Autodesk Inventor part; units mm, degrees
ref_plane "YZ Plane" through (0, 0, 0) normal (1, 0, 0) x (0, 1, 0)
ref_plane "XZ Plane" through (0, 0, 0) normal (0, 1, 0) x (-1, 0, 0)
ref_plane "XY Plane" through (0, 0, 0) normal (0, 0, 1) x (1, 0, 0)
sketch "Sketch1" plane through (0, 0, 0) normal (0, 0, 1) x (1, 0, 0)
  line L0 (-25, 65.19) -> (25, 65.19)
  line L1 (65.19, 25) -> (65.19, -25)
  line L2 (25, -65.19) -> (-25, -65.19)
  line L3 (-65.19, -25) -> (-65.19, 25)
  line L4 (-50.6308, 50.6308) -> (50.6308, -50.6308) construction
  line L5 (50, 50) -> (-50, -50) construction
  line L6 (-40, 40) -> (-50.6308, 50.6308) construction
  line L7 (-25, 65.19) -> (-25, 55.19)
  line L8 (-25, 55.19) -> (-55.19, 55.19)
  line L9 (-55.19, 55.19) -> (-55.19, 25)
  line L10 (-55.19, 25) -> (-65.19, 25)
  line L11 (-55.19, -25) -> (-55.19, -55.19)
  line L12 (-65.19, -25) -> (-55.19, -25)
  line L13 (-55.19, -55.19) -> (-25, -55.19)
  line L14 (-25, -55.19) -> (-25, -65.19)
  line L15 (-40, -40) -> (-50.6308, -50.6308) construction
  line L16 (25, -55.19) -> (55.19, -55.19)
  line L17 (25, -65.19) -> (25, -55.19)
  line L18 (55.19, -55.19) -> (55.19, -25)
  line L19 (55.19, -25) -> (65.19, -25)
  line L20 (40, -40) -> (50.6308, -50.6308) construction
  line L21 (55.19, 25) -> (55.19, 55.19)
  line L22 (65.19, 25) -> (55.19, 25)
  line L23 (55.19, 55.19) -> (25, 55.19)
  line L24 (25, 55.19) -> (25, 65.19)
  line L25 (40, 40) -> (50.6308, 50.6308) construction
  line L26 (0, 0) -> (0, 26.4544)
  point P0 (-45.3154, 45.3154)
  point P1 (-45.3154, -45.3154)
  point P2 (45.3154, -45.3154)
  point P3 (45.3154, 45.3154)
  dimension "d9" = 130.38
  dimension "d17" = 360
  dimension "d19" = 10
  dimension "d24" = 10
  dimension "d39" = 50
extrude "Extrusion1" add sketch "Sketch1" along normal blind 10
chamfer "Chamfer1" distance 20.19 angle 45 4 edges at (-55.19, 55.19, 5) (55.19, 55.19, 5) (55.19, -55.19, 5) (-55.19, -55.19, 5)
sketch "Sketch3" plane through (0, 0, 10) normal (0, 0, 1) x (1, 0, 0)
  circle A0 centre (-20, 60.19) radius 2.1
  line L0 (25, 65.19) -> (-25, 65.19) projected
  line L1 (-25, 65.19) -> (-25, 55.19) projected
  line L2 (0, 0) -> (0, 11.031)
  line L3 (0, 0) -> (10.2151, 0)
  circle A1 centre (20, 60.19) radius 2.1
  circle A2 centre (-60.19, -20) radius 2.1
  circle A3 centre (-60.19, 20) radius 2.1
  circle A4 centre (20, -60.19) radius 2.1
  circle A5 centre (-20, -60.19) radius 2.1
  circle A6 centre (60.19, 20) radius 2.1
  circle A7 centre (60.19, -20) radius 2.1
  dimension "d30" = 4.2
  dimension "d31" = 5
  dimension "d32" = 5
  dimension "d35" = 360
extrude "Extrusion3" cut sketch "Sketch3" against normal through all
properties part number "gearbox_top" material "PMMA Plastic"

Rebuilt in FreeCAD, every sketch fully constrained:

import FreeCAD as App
import Part
import Sketcher

V = App.Vector
Q = App.Units.Quantity


def edges_at(feature, points):
    """Names of the edges that pass closest to the given points."""
    edges = feature.Shape.Edges
    near = lambda p: min(range(len(edges)), key=lambda i: edges[i].distToShape(Part.Vertex(*p))[0])
    return sorted({f"Edge{near(p) + 1}" for p in points})


def add_polygon(sketch, points):
    """Adds a closed chain of lines whose ends are joined by coincident constraints."""
    first, n = sketch.GeometryCount, len(points)
    for a, b in zip(points, points[1:] + points[:1]):
        sketch.addGeometry(Part.LineSegment(App.Vector(*a, 0), App.Vector(*b, 0)), False)
    for i in range(n):
        sketch.addConstraint(Sketcher.Constraint("Coincident", first + i, 2, first + (i + 1) % n, 1))

doc = App.newDocument("Part")
params = doc.addObject("Spreadsheet::Sheet", "Params")
for row, (alias, value) in enumerate([
    ("sketch1_width", "50 mm"),
    ("sketch1_width2", "10 mm"),
    ("sketch1_width3", "30.19 mm"),
    ("pad1_length", "10 mm"),
    ("chamfer_size", "20.19 mm"),
    ("sketch2_diameter", "4.2 mm"),
], start=1):
    params.set(f"A{row}", alias)
    params.set(f"B{row}", "=" + value)
    params.setAlias(f"B{row}", alias)

body = doc.addObject("PartDesign::Body", "Body")

# Sketch on XY plane
sketch1 = body.newObject("Sketcher::SketchObject", "Sketch")
sketch1.AttachmentSupport = (doc.getObject("XY_Plane"), [""])
sketch1.MapMode = "FlatFace"
add_polygon(sketch1, [(25, 65.19), (-25, 65.19), (-25, 55.19), (-55.19, 55.19), (-55.19, 25), (-65.19, 25), (-65.19, -25), (-55.19, -25), (-55.19, -55.19), (-25, -55.19), (-25, -65.19), (25, -65.19), (25, -55.19), (55.19, -55.19), (55.19, -25), (65.19, -25), (65.19, 25), (55.19, 25), (55.19, 55.19), (25, 55.19)])  # lines 0-19
sketch1.addConstraint([
    Sketcher.Constraint("Horizontal", 0),
    Sketcher.Constraint("Vertical", 1),
    Sketcher.Constraint("Horizontal", 2),
    Sketcher.Constraint("Vertical", 3),
    Sketcher.Constraint("Horizontal", 4),
    Sketcher.Constraint("Vertical", 5),
    Sketcher.Constraint("Horizontal", 6),
    Sketcher.Constraint("Vertical", 7),
    Sketcher.Constraint("Horizontal", 8),
    Sketcher.Constraint("Vertical", 9),
    Sketcher.Constraint("Horizontal", 10),
    Sketcher.Constraint("Vertical", 11),
    Sketcher.Constraint("Horizontal", 12),
    Sketcher.Constraint("Vertical", 13),
    Sketcher.Constraint("Horizontal", 14),
    Sketcher.Constraint("Vertical", 15),
    Sketcher.Constraint("Horizontal", 16),
    Sketcher.Constraint("Vertical", 17),
    Sketcher.Constraint("Horizontal", 18),
    Sketcher.Constraint("Vertical", 19),
    Sketcher.Constraint("Symmetric", 0, 2, 10, 2, -1, 1),
    Sketcher.Constraint("Symmetric", 2, 2, 12, 2, -1, 1),
    Sketcher.Constraint("Symmetric", 4, 2, 14, 2, -1, 1),
    Sketcher.Constraint("Symmetric", 6, 2, 16, 2, -1, 1),
    Sketcher.Constraint("Symmetric", 8, 2, 18, 2, -1, 1),
    Sketcher.Constraint("Symmetric", 8, 2, 11, 2, -2),
    Sketcher.Constraint("Symmetric", 6, 2, 13, 2, -2),
    Sketcher.Constraint("Equal", 16, 1),
    Sketcher.Constraint("Equal", 18, 3),
    Sketcher.Constraint("Equal", 10, 5),
    Sketcher.Constraint("DistanceX", 0, 2, 0, 1, Q("50 mm")),
    Sketcher.Constraint("DistanceX", 4, 2, 4, 1, Q("10 mm")),
    Sketcher.Constraint("DistanceX", 2, 2, 2, 1, Q("30.19 mm")),
])
sketch1.setExpression("Constraints[50]", "Params.sketch1_width")
sketch1.setExpression("Constraints[51]", "Params.sketch1_width2")
sketch1.setExpression("Constraints[52]", "Params.sketch1_width3")
pad1 = body.newObject("PartDesign::Pad", "Pad")
pad1.Profile = sketch1
pad1.setExpression("Length", "Params.pad1_length")
doc.recompute()

chamfer = body.newObject("PartDesign::Chamfer", "Chamfer")
chamfer.Base = (pad1, edges_at(pad1, [
    (-55.19, 55.19, 5),
    (55.19, 55.19, 5),
    (55.19, -55.19, 5),
    (-55.19, -55.19, 5),
]))
chamfer.setExpression("Size", "Params.chamfer_size")

# Sketch on XY plane
sketch2 = body.newObject("Sketcher::SketchObject", "Sketch001")
sketch2.AttachmentSupport = (doc.getObject("XY_Plane"), [""])
sketch2.MapMode = "FlatFace"
sketch2.AttachmentOffset = App.Placement(V(0, 0, 10), App.Rotation())
sketch2.addGeometry([
    Part.Circle(V(-20, 60.19, 0), V(0, 0, 1), 2.1),  # 0
    Part.Circle(V(20, 60.19, 0), V(0, 0, 1), 2.1),  # 1
    Part.Circle(V(-60.19, -20, 0), V(0, 0, 1), 2.1),  # 2
    Part.Circle(V(-60.19, 20, 0), V(0, 0, 1), 2.1),  # 3
    Part.Circle(V(20, -60.19, 0), V(0, 0, 1), 2.1),  # 4
    Part.Circle(V(-20, -60.19, 0), V(0, 0, 1), 2.1),  # 5
    Part.Circle(V(60.19, 20, 0), V(0, 0, 1), 2.1),  # 6
    Part.Circle(V(60.19, -20, 0), V(0, 0, 1), 2.1),  # 7
], False)
sketch2.addConstraint([
    Sketcher.Constraint("Equal", 0, 1),
    Sketcher.Constraint("Equal", 1, 2),
    Sketcher.Constraint("Equal", 2, 3),
    Sketcher.Constraint("Equal", 3, 4),
    Sketcher.Constraint("Equal", 4, 5),
    Sketcher.Constraint("Equal", 5, 6),
    Sketcher.Constraint("Equal", 6, 7),
    Sketcher.Constraint("Symmetric", 0, 3, 4, 3, -1, 1),
    Sketcher.Constraint("Symmetric", 1, 3, 5, 3, -1, 1),
    Sketcher.Constraint("Symmetric", 2, 3, 6, 3, -1, 1),
    Sketcher.Constraint("Symmetric", 3, 3, 7, 3, -1, 1),
    Sketcher.Constraint("Symmetric", 0, 3, 1, 3, -2),
    Sketcher.Constraint("Symmetric", 3, 3, 6, 3, -2),
    Sketcher.Constraint("Diameter", 0, Q("4.2 mm")),
    Sketcher.Constraint("DistanceX", 0, 3, -1, 1, Q("20 mm")),
    Sketcher.Constraint("DistanceY", 2, 3, -1, 1, Q("20 mm")),
    Sketcher.Constraint("DistanceY", -1, 1, 0, 3, Q("60.19 mm")),
    Sketcher.Constraint("DistanceX", 2, 3, -1, 1, Q("60.19 mm")),
])
sketch2.setExpression("Constraints[13]", "Params.sketch2_diameter")
pocket1 = body.newObject("PartDesign::Pocket", "Pocket")
pocket1.Profile = sketch2
pocket1.Type = "ThroughAll"

doc.recompute()
